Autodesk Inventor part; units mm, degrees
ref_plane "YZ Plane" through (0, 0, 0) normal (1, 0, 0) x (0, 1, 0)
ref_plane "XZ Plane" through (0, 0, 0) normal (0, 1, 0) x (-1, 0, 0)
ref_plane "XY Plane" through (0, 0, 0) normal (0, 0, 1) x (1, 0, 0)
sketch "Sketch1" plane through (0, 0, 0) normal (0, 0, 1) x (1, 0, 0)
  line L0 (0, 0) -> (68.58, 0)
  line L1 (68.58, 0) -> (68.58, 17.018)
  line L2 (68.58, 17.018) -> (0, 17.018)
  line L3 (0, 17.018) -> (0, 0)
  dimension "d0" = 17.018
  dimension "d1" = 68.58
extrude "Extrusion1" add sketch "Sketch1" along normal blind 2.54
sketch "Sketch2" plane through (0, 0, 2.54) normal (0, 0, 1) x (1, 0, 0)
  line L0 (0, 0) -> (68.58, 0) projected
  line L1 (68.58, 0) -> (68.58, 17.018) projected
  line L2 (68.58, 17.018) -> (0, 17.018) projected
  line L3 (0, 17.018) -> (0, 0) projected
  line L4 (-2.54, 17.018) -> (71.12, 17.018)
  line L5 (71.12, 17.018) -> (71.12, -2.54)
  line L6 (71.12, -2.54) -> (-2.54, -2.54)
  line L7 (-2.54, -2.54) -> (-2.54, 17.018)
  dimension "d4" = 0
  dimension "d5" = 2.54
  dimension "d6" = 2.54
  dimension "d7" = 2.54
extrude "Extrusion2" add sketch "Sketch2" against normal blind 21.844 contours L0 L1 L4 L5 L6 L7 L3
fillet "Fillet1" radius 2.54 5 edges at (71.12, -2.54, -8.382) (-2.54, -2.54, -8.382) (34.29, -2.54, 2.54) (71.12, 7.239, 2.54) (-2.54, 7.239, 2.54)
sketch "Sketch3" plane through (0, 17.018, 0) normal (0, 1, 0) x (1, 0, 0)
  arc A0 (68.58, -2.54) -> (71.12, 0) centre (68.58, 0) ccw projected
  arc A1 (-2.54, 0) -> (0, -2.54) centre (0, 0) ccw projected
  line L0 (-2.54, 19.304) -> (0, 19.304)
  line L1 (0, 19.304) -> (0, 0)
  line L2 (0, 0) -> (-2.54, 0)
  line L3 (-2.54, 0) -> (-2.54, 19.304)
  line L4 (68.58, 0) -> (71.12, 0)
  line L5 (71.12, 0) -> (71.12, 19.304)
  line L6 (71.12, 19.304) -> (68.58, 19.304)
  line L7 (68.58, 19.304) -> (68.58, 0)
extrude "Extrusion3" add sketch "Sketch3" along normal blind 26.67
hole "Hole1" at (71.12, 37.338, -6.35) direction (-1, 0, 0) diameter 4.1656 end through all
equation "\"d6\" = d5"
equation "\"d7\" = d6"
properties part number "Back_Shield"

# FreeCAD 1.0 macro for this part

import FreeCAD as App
import Part
import Sketcher

V = App.Vector
Q = App.Units.Quantity


def edges_at(feature, points):
    """Names of the edges that pass closest to the given points."""
    edges = feature.Shape.Edges
    near = lambda p: min(range(len(edges)), key=lambda i: edges[i].distToShape(Part.Vertex(*p))[0])
    return sorted({f"Edge{near(p) + 1}" for p in points})

doc = App.newDocument("Part")
body = doc.addObject("PartDesign::Body", "Body")

# Sketch on XY plane
sketch1 = doc.addObject("Sketcher::SketchObject", "Sketch")
body.addObject(sketch1)
sketch1.AttachmentSupport = (doc.XY_Plane, [""])
sketch1.MapMode = "FlatFace"
sketch1.addGeometry(Part.LineSegment(V(0, 17.018, 0), V(0, 0, 0)), False)
sketch1.addGeometry(Part.LineSegment(V(0, 0, 0), V(68.58, 0, 0)), False)
sketch1.addGeometry(Part.LineSegment(V(68.58, 0, 0), V(68.58, 17.018, 0)), False)
sketch1.addGeometry(Part.LineSegment(V(68.58, 17.018, 0), V(0, 17.018, 0)), False)
sketch1.addConstraint(Sketcher.Constraint("Coincident", 0, 2, 1, 1))
sketch1.addConstraint(Sketcher.Constraint("Coincident", 1, 2, 2, 1))
sketch1.addConstraint(Sketcher.Constraint("Coincident", 2, 2, 3, 1))
sketch1.addConstraint(Sketcher.Constraint("Coincident", 3, 2, 0, 1))
sketch1.addConstraint(Sketcher.Constraint("Vertical", 0))
sketch1.addConstraint(Sketcher.Constraint("Horizontal", 1))
sketch1.addConstraint(Sketcher.Constraint("Vertical", 2))
sketch1.addConstraint(Sketcher.Constraint("Horizontal", 3))
sketch1.addConstraint(Sketcher.Constraint("Coincident", 0, 2, -1, 1))
sketch1.addConstraint(Sketcher.Constraint("DistanceX", 1, 1, 1, 2, Q("2.7 in")))
sketch1.addConstraint(Sketcher.Constraint("DistanceY", 0, 2, 0, 1, Q("0.67 in")))
pad1 = doc.addObject("PartDesign::Pad", "Pad")
body.addObject(pad1)
pad1.Profile = sketch1
pad1.Length = Q("0.1 in")

# Sketch on XY plane
sketch2 = doc.addObject("Sketcher::SketchObject", "Sketch001")
body.addObject(sketch2)
sketch2.AttachmentSupport = (doc.XY_Plane, [""])
sketch2.MapMode = "FlatFace"
sketch2.AttachmentOffset = App.Placement(V(0, 0, 0.1 * 25.4), App.Rotation())
sketch2.addGeometry(Part.LineSegment(V(68.58, 0, 0), V(0, 0, 0)), False)
sketch2.addGeometry(Part.LineSegment(V(0, 0, 0), V(0, 17.018, 0)), False)
sketch2.addGeometry(Part.LineSegment(V(0, 17.018, 0), V(-2.54, 17.018, 0)), False)
sketch2.addGeometry(Part.LineSegment(V(-2.54, 17.018, 0), V(-2.54, -2.54, 0)), False)
sketch2.addGeometry(Part.LineSegment(V(-2.54, -2.54, 0), V(71.12, -2.54, 0)), False)
sketch2.addGeometry(Part.LineSegment(V(71.12, -2.54, 0), V(71.12, 17.018, 0)), False)
sketch2.addGeometry(Part.LineSegment(V(71.12, 17.018, 0), V(68.58, 17.018, 0)), False)
sketch2.addGeometry(Part.LineSegment(V(68.58, 17.018, 0), V(68.58, 0, 0)), False)
sketch2.addConstraint(Sketcher.Constraint("Coincident", 0, 2, 1, 1))
sketch2.addConstraint(Sketcher.Constraint("Coincident", 1, 2, 2, 1))
sketch2.addConstraint(Sketcher.Constraint("Coincident", 2, 2, 3, 1))
sketch2.addConstraint(Sketcher.Constraint("Coincident", 3, 2, 4, 1))
sketch2.addConstraint(Sketcher.Constraint("Coincident", 4, 2, 5, 1))
sketch2.addConstraint(Sketcher.Constraint("Coincident", 5, 2, 6, 1))
sketch2.addConstraint(Sketcher.Constraint("Coincident", 6, 2, 7, 1))
sketch2.addConstraint(Sketcher.Constraint("Coincident", 7, 2, 0, 1))
sketch2.addConstraint(Sketcher.Constraint("Horizontal", 0))
sketch2.addConstraint(Sketcher.Constraint("Vertical", 1))
sketch2.addConstraint(Sketcher.Constraint("Horizontal", 2))
sketch2.addConstraint(Sketcher.Constraint("Vertical", 3))
sketch2.addConstraint(Sketcher.Constraint("Horizontal", 4))
sketch2.addConstraint(Sketcher.Constraint("Vertical", 5))
sketch2.addConstraint(Sketcher.Constraint("Horizontal", 6))
sketch2.addConstraint(Sketcher.Constraint("Vertical", 7))
sketch2.addConstraint(Sketcher.Constraint("Coincident", 0, 2, -1, 1))
sketch2.addConstraint(Sketcher.Constraint("Horizontal", 2, 2, 5, 2))
sketch2.addConstraint(Sketcher.Constraint("Equal", 2, 6))
sketch2.addConstraint(Sketcher.Constraint("DistanceX", 2, 2, 2, 1, Q("0.1 in")))
sketch2.addConstraint(Sketcher.Constraint("DistanceY", 3, 2, -1, 1, Q("0.1 in")))
sketch2.addConstraint(Sketcher.Constraint("DistanceX", 0, 2, 0, 1, Q("2.7 in")))
sketch2.addConstraint(Sketcher.Constraint("DistanceY", 1, 1, 1, 2, Q("0.67 in")))
pad2 = doc.addObject("PartDesign::Pad", "Pad001")
body.addObject(pad2)
pad2.Profile = sketch2
pad2.Length = Q("0.86 in")
pad2.Reversed = True
doc.recompute()

fillet = doc.addObject("PartDesign::Fillet", "Fillet")
body.addObject(fillet)
fillet.Base = (pad2, edges_at(pad2, [
    (71.12, -2.54, -8.382),
    (-2.54, -2.54, -8.382),
    (34.29, -2.54, 2.54),
    (71.12, 7.239, 2.54),
    (-2.54, 7.239, 2.54),
]))
fillet.Radius = Q("0.1 in")

# Sketch on XZ plane
sketch3 = doc.addObject("Sketcher::SketchObject", "Sketch002")
body.addObject(sketch3)
sketch3.AttachmentSupport = (doc.XZ_Plane, [""])
sketch3.MapMode = "FlatFace"
sketch3.AttachmentOffset = App.Placement(V(0, 0, -0.67 * 25.4), App.Rotation())
sketch3.addGeometry(Part.LineSegment(V(0, -19.304, 0), V(-2.54, -19.304, 0)), False)
sketch3.addGeometry(Part.LineSegment(V(-2.54, -19.304, 0), V(-2.54, 0, 0)), False)
sketch3.addGeometry(Part.LineSegment(V(-2.54, 0, 0), V(0, 0, 0)), False)
sketch3.addGeometry(Part.LineSegment(V(0, 0, 0), V(0, -19.304, 0)), False)
sketch3.addGeometry(Part.LineSegment(V(68.58, -19.304, 0), V(68.58, 0, 0)), False)
sketch3.addGeometry(Part.LineSegment(V(68.58, 0, 0), V(71.12, 0, 0)), False)
sketch3.addGeometry(Part.LineSegment(V(71.12, 0, 0), V(71.12, -19.304, 0)), False)
sketch3.addGeometry(Part.LineSegment(V(71.12, -19.304, 0), V(68.58, -19.304, 0)), False)
sketch3.addConstraint(Sketcher.Constraint("Coincident", 0, 2, 1, 1))
sketch3.addConstraint(Sketcher.Constraint("Coincident", 1, 2, 2, 1))
sketch3.addConstraint(Sketcher.Constraint("Coincident", 2, 2, 3, 1))
sketch3.addConstraint(Sketcher.Constraint("Coincident", 3, 2, 0, 1))
sketch3.addConstraint(Sketcher.Constraint("Coincident", 4, 2, 5, 1))
sketch3.addConstraint(Sketcher.Constraint("Coincident", 5, 2, 6, 1))
sketch3.addConstraint(Sketcher.Constraint("Coincident", 6, 2, 7, 1))
sketch3.addConstraint(Sketcher.Constraint("Coincident", 7, 2, 4, 1))
sketch3.addConstraint(Sketcher.Constraint("Horizontal", 0))
sketch3.addConstraint(Sketcher.Constraint("Vertical", 1))
sketch3.addConstraint(Sketcher.Constraint("Horizontal", 2))
sketch3.addConstraint(Sketcher.Constraint("Vertical", 3))
sketch3.addConstraint(Sketcher.Constraint("Vertical", 4))
sketch3.addConstraint(Sketcher.Constraint("Horizontal", 5))
sketch3.addConstraint(Sketcher.Constraint("Vertical", 6))
sketch3.addConstraint(Sketcher.Constraint("Horizontal", 7))
sketch3.addConstraint(Sketcher.Constraint("Coincident", 2, 2, -1, 1))
sketch3.addConstraint(Sketcher.Constraint("PointOnObject", 4, 2, -1))
sketch3.addConstraint(Sketcher.Constraint("Horizontal", 3, 2, 6, 2))
sketch3.addConstraint(Sketcher.Constraint("Equal", 2, 5))
sketch3.addConstraint(Sketcher.Constraint("DistanceX", 0, 2, 0, 1, Q("0.1 in")))
sketch3.addConstraint(Sketcher.Constraint("DistanceY", 1, 1, 1, 2, Q("0.76 in")))
sketch3.addConstraint(Sketcher.Constraint("DistanceX", -1, 1, 4, 2, Q("2.7 in")))
pad3 = doc.addObject("PartDesign::Pad", "Pad002")
body.addObject(pad3)
pad3.Profile = sketch3
pad3.Length = Q("1.05 in")
pad3.Reversed = True

# Sketch on YZ plane
sketch4 = doc.addObject("Sketcher::SketchObject", "Sketch003")
body.addObject(sketch4)
sketch4.AttachmentSupport = (doc.YZ_Plane, [""])
sketch4.MapMode = "FlatFace"
sketch4.AttachmentOffset = App.Placement(V(0, 0, 2.8 * 25.4), App.Rotation())
sketch4.addGeometry(Part.Circle(V(37.338, -6.35, 0), V(0, 0, 1), 2.0828), False)
sketch4.addConstraint(Sketcher.Constraint("Diameter", 0, Q("0.164 in")))
sketch4.addConstraint(Sketcher.Constraint("DistanceX", -1, 1, 0, 3, Q("1.47 in")))
sketch4.addConstraint(Sketcher.Constraint("DistanceY", 0, 3, -1, 1, Q("0.25 in")))
doc.recompute()
hole = doc.addObject("PartDesign::Hole", "Hole")
body.addObject(hole)
hole.Profile = sketch4
hole.ThreadType = "None"
hole.Diameter = Q("0.164 in")
hole.DepthType = "ThroughAll"

doc.recompute()
